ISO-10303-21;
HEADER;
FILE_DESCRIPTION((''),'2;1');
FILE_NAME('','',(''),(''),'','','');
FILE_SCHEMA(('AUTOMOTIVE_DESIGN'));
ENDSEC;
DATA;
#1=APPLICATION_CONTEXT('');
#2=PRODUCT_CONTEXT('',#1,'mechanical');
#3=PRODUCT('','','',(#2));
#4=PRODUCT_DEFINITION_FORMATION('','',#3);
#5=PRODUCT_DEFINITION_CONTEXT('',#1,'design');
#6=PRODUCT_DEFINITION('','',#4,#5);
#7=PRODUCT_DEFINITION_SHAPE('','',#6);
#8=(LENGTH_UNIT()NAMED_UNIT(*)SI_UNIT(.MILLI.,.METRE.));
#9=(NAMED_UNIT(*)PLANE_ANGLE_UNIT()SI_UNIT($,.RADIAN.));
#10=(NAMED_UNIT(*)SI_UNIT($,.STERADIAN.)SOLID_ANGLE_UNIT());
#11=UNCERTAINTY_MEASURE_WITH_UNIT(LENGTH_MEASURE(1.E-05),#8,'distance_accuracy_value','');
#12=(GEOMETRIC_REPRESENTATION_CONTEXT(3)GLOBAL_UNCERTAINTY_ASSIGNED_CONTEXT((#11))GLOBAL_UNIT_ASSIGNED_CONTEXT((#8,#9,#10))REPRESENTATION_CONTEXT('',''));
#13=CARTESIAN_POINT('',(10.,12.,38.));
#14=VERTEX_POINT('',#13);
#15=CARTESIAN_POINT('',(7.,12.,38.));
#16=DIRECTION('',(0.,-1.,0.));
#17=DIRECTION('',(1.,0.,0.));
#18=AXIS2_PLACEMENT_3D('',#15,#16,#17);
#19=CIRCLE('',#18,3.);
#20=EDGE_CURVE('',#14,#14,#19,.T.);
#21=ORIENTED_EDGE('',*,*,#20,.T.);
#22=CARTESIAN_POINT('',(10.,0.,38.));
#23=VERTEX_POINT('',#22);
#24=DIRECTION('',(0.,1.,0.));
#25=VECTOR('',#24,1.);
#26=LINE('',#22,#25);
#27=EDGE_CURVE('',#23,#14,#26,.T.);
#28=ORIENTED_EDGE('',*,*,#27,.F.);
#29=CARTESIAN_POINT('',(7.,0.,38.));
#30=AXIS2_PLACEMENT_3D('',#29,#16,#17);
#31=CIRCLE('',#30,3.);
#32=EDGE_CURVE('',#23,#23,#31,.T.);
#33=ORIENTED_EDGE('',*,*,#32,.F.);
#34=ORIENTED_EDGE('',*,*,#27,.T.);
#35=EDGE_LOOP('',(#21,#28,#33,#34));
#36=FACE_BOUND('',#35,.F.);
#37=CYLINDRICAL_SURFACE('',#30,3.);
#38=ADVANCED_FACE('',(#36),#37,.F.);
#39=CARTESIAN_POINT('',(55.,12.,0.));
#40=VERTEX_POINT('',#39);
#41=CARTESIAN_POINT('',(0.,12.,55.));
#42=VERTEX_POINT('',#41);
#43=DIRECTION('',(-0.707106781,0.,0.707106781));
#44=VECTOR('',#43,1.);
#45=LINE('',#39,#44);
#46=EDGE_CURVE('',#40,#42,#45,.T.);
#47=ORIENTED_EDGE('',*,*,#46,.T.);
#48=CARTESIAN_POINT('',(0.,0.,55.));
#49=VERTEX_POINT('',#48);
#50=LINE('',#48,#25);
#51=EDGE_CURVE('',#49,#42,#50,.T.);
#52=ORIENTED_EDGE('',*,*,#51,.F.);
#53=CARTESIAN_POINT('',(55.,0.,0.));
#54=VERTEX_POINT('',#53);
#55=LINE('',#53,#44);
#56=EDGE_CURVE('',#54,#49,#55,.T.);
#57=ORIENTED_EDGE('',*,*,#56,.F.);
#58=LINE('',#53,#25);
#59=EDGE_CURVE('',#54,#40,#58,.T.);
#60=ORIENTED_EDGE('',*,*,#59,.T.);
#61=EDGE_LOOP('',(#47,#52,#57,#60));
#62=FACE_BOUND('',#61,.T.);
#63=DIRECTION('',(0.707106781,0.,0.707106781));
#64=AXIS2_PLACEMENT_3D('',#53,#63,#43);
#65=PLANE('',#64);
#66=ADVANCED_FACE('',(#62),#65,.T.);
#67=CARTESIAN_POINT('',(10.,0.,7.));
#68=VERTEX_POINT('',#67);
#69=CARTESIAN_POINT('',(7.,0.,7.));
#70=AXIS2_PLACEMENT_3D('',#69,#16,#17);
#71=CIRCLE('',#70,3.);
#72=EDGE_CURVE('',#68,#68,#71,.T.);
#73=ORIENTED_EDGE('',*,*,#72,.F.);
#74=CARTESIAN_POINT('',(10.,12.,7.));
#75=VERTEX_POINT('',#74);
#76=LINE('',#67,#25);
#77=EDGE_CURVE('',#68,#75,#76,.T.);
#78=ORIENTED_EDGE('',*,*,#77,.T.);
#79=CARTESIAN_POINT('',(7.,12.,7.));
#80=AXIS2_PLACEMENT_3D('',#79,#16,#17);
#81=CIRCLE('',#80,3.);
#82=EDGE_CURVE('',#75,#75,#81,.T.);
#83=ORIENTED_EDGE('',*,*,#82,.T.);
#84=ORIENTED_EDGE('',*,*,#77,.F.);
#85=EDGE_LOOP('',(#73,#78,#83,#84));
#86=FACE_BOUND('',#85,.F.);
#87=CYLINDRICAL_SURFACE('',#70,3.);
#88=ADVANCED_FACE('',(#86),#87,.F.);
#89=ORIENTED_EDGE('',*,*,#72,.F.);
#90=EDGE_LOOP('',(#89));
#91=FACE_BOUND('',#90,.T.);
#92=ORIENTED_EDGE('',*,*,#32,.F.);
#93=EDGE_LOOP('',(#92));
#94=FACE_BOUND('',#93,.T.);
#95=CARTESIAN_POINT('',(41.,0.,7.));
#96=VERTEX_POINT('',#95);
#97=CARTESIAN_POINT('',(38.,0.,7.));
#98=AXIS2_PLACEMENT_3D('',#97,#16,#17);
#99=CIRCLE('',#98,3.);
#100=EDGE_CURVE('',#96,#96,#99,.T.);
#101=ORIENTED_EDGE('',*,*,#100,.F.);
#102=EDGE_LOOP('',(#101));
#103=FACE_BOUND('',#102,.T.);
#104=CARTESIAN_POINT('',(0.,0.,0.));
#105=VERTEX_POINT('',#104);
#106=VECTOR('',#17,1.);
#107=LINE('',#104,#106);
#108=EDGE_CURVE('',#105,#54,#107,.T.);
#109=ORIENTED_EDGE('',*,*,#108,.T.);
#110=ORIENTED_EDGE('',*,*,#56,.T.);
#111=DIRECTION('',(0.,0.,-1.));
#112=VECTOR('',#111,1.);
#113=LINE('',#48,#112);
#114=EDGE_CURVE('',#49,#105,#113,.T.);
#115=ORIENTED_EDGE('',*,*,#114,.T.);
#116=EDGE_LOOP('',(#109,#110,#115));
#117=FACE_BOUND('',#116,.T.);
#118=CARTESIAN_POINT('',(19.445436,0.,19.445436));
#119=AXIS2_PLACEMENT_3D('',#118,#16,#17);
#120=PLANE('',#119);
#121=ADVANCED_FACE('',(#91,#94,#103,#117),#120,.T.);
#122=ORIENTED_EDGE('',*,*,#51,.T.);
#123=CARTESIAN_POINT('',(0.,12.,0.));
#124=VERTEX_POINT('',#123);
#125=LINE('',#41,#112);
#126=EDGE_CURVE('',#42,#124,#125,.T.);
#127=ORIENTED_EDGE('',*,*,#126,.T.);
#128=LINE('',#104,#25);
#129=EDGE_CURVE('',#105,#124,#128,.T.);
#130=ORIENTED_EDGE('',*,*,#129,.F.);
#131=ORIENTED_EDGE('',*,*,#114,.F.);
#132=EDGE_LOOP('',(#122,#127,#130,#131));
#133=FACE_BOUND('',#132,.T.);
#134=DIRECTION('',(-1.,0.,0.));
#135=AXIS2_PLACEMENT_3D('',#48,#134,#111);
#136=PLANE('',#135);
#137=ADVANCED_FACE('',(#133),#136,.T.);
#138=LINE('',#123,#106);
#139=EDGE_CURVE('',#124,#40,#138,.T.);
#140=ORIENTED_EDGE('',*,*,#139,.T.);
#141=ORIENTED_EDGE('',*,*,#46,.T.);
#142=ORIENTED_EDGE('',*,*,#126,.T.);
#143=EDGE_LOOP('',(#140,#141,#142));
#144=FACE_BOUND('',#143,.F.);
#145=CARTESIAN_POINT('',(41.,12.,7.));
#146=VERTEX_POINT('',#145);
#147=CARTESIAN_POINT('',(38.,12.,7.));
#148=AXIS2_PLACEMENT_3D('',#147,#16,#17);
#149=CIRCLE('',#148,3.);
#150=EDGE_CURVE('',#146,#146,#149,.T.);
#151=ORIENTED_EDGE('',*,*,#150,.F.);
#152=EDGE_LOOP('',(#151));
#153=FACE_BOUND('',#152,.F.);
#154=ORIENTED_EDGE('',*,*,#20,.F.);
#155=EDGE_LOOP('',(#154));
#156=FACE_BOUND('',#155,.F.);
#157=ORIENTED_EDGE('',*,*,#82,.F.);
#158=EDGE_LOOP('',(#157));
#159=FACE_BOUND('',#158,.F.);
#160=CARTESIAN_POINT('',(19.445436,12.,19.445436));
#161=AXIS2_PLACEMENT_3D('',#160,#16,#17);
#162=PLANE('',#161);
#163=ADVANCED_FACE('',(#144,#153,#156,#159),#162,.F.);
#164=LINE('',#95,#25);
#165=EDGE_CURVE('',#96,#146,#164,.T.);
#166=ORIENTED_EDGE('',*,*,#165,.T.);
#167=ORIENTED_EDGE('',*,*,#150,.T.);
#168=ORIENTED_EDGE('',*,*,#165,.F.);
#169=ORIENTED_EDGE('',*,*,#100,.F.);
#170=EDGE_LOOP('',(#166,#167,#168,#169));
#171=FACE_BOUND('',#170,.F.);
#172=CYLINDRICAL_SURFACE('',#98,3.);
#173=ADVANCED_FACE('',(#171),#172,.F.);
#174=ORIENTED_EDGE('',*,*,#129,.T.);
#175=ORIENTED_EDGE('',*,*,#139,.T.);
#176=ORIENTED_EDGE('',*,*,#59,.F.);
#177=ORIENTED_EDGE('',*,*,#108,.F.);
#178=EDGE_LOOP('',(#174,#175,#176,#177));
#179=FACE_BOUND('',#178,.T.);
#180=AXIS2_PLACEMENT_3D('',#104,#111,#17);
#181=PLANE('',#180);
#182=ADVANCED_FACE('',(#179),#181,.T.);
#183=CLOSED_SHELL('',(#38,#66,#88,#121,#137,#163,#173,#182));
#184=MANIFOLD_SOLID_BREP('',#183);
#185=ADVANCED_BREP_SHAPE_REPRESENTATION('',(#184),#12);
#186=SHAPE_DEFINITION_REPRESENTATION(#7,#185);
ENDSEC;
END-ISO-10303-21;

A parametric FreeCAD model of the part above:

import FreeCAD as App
import Part
import Sketcher
Q = App.Units.Quantity


def add_polygon(sketch, points):
    """Adds a closed chain of lines whose ends are joined by coincident constraints."""
    first, n = sketch.GeometryCount, len(points)
    for a, b in zip(points, points[1:] + points[:1]):
        sketch.addGeometry(Part.LineSegment(App.Vector(*a, 0), App.Vector(*b, 0)), False)
    for i in range(n):
        sketch.addConstraint(Sketcher.Constraint("Coincident", first + i, 2, first + (i + 1) % n, 1))

doc = App.newDocument("Part")
params = doc.addObject("Spreadsheet::Sheet", "Params")
for row, (alias, value) in enumerate([
    ("sketch1_diameter", "6 mm"),
    ("sketch1_width", "55 mm"),
    ("pad1_length", "12 mm"),
], start=1):
    params.set(f"A{row}", alias)
    params.set(f"B{row}", "=" + value)
    params.setAlias(f"B{row}", alias)

body = doc.addObject("PartDesign::Body", "Body")

# Sketch on XZ plane
sketch1 = body.newObject("Sketcher::SketchObject", "Sketch")
sketch1.AttachmentSupport = (doc.getObject("XZ_Plane"), [""])
sketch1.MapMode = "FlatFace"
add_polygon(sketch1, [(0, 55), (0, 0), (55, 0)])  # lines 0-2
sketch1.addGeometry(Part.Circle(App.Vector(7, 7, 0), App.Vector(0, 0, 1), 3), False)  # 3
sketch1.addGeometry(Part.Circle(App.Vector(38, 7, 0), App.Vector(0, 0, 1), 3), False)  # 4
sketch1.addGeometry(Part.Circle(App.Vector(7, 38, 0), App.Vector(0, 0, 1), 3), False)  # 5
sketch1.addConstraint(Sketcher.Constraint("Vertical", 0))
sketch1.addConstraint(Sketcher.Constraint("Horizontal", 1))
sketch1.addConstraint(Sketcher.Constraint("Coincident", 0, 2, -1, 1))
sketch1.addConstraint(Sketcher.Constraint("Equal", 3, 4))
sketch1.addConstraint(Sketcher.Constraint("Equal", 4, 5))
sketch1.addConstraint(Sketcher.Constraint("Horizontal", 3, 3, 4, 3))
sketch1.addConstraint(Sketcher.Constraint("Vertical", 3, 3, 5, 3))
sketch1.addConstraint(Sketcher.Constraint("Equal", 1, 0))
sketch1.addConstraint(Sketcher.Constraint("Diameter", 3, Q("6 mm")))
sketch1.addConstraint(Sketcher.Constraint("DistanceX", 1, 1, 1, 2, Q("55 mm")))
sketch1.addConstraint(Sketcher.Constraint("DistanceX", -1, 1, 3, 3, Q("7 mm")))
sketch1.addConstraint(Sketcher.Constraint("DistanceY", -1, 1, 3, 3, Q("7 mm")))
sketch1.addConstraint(Sketcher.Constraint("DistanceX", -1, 1, 4, 3, Q("38 mm")))
sketch1.addConstraint(Sketcher.Constraint("DistanceY", -1, 1, 5, 3, Q("38 mm")))
sketch1.setExpression("Constraints[11]", "Params.sketch1_diameter")
sketch1.setExpression("Constraints[12]", "Params.sketch1_width")
pad1 = body.newObject("PartDesign::Pad", "Pad")
pad1.Profile = sketch1
pad1.setExpression("Length", "Params.pad1_length")
pad1.Reversed = True

doc.recompute()
